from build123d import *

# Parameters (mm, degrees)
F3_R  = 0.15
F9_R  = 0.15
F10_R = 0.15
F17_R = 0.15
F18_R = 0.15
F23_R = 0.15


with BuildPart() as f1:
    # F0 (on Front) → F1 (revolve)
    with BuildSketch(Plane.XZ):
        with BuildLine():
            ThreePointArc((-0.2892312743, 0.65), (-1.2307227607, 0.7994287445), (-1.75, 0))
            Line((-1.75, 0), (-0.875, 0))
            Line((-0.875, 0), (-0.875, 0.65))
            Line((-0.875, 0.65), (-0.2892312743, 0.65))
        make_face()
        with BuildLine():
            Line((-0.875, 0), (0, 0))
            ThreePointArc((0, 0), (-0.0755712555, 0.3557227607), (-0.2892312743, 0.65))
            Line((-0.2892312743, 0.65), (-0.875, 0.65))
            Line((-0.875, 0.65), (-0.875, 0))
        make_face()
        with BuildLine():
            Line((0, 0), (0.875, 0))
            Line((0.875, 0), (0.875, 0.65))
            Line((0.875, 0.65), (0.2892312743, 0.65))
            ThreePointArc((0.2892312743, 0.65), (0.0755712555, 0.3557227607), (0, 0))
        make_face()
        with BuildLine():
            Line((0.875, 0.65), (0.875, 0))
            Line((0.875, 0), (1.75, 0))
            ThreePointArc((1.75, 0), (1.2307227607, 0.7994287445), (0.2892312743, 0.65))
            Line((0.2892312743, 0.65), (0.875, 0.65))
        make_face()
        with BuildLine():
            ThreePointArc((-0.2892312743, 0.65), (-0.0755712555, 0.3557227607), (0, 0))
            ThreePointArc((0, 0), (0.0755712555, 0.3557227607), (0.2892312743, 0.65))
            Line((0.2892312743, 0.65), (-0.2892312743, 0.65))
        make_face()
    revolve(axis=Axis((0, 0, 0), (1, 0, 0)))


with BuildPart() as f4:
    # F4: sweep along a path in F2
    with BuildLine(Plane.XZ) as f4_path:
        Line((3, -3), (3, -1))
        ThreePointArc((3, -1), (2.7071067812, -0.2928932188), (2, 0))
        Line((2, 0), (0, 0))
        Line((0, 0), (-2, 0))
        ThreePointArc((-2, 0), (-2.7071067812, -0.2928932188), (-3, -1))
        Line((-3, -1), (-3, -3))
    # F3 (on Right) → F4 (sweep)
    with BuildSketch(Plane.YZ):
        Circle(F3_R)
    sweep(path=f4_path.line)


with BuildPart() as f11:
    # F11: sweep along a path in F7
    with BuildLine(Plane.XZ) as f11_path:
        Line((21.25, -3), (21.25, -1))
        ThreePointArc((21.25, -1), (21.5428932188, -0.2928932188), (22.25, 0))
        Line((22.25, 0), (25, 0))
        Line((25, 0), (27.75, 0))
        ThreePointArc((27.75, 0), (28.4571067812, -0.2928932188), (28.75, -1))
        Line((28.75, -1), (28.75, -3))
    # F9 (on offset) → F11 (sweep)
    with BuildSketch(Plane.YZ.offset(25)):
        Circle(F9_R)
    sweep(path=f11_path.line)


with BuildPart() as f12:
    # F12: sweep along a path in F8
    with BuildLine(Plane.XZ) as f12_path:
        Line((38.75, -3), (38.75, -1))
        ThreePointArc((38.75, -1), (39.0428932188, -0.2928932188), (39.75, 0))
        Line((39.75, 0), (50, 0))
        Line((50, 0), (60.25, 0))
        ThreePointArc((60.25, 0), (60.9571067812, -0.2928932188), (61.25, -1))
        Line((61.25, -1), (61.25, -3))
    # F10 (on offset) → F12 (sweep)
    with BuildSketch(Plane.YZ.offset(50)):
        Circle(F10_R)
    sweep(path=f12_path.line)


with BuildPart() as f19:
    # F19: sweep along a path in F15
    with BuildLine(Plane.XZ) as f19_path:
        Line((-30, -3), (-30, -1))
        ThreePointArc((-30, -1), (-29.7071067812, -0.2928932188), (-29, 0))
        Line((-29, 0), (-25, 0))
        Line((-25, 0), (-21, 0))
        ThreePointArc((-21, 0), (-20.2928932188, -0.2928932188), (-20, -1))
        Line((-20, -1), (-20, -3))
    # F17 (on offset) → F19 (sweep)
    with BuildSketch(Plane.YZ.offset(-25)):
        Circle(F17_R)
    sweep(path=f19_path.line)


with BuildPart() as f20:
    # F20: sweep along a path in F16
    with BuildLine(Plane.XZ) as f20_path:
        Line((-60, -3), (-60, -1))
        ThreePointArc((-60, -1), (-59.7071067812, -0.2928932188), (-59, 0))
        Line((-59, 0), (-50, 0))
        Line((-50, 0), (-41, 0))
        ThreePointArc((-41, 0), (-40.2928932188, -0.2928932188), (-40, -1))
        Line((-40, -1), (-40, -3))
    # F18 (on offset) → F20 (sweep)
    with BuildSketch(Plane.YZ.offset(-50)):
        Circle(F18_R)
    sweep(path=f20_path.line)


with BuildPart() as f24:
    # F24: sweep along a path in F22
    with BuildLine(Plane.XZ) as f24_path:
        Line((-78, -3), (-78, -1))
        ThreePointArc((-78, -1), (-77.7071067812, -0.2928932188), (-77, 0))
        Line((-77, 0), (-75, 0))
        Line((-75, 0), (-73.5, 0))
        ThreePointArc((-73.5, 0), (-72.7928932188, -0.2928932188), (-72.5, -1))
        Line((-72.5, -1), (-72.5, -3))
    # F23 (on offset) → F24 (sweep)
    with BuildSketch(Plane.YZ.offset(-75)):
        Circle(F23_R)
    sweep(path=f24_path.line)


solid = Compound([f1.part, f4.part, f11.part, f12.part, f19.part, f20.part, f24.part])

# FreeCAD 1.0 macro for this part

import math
import FreeCAD as App
import Part
import Sketcher
Q = App.Units.Quantity

doc = App.newDocument("Part")
body = doc.addObject("PartDesign::Body", "Body")

sketch1 = body.newObject("Sketcher::SketchObject", "Sketch")
sketch1.AttachmentSupport = (doc.getObject("XZ_Plane"), [""])
sketch1.MapMode = "FlatFace"
sketch1.addGeometry([
    Part.ArcOfCircle(Part.Circle(App.Vector(-0.9, 0, 0), App.Vector(0, 0, 1), 0.9), math.radians(48), math.radians(180)),
    Part.LineSegment(App.Vector(-1.8, 0, 0), App.Vector(1.8, 0, 0)),
    Part.ArcOfCircle(Part.Circle(App.Vector(0.9, 0, 0), App.Vector(0, 0, 1), 0.9), math.radians(0), math.radians(132)),
    Part.LineSegment(App.Vector(0.3, 0.7, 0), App.Vector(-0.3, 0.7, 0)),
], False)
sketch1.addConstraint([
    Sketcher.Constraint("Coincident", 0, 2, 1, 1),
    Sketcher.Constraint("Coincident", 1, 2, 2, 1),
    Sketcher.Constraint("Coincident", 2, 2, 3, 1),
    Sketcher.Constraint("Coincident", 3, 2, 0, 1),
    Sketcher.Constraint("Horizontal", 1),
    Sketcher.Constraint("Horizontal", 3),
    Sketcher.Constraint("Equal", 0, 2),
    Sketcher.Constraint("Symmetric", 0, 3, 2, 3, -1, 1),
    Sketcher.Constraint("PointOnObject", 0, 3, -1),
    Sketcher.Constraint("PointOnObject", 0, 2, -1),
    Sketcher.Constraint("DistanceX", 1, 1, 1, 2, Q("3.5 mm")),
    Sketcher.Constraint("Radius", 0, Q("0.875 mm")),
    Sketcher.Constraint("DistanceY", -1, 1, 2, 2, Q("0.65 mm")),
])
revolution = body.newObject("PartDesign::Revolution", "Revolution")
revolution.Profile = sketch1
revolution.ReferenceAxis = (sketch1, ["H_Axis"])
revolution.Angle = 360
body2 = doc.addObject("PartDesign::Body", "Body001")

sketch2 = body2.newObject("Sketcher::SketchObject", "Sketch001")
sketch2.AttachmentSupport = (doc.getObject("YZ_Plane001"), [""])
sketch2.MapMode = "FlatFace"
sketch2.addGeometry(Part.Circle(App.Vector(0, 0, 0), App.Vector(0, 0, 1), 0.15), False)
sketch2.addConstraint([
    Sketcher.Constraint("Coincident", 0, 3, -1, 1),
    Sketcher.Constraint("Diameter", 0, Q("0.3 mm")),
])

sketch3 = body2.newObject("Sketcher::SketchObject", "Sketch002")
sketch3.AttachmentSupport = (doc.getObject("XZ_Plane001"), [""])
sketch3.MapMode = "FlatFace"
sketch3.addGeometry([
    Part.LineSegment(App.Vector(3, -3, 0), App.Vector(3, -1, 0)),
    Part.ArcOfCircle(Part.Circle(App.Vector(2, -1, 0), App.Vector(0, 0, 1), 1), math.radians(0), math.radians(90)),
    Part.LineSegment(App.Vector(2, 0, 0), App.Vector(-2, 0, 0)),
    Part.ArcOfCircle(Part.Circle(App.Vector(-2, -1, 0), App.Vector(0, 0, 1), 1), math.radians(90), math.radians(180)),
    Part.LineSegment(App.Vector(-3, -1, 0), App.Vector(-3, -3, 0)),
], False)
sketch3.addConstraint([
    Sketcher.Constraint("Tangent", 0, 2, 1, 1),
    Sketcher.Constraint("Tangent", 1, 2, 2, 1),
    Sketcher.Constraint("Tangent", 2, 2, 3, 1),
    Sketcher.Constraint("Tangent", 3, 2, 4, 1),
    Sketcher.Constraint("Vertical", 0),
    Sketcher.Constraint("Horizontal", 2),
    Sketcher.Constraint("Vertical", 4),
    Sketcher.Constraint("Equal", 1, 3),
    Sketcher.Constraint("Symmetric", 1, 2, 2, 2, -1, 1),
    Sketcher.Constraint("Horizontal", 0, 1, 4, 2),
    Sketcher.Constraint("Radius", 1, Q("1 mm")),
    Sketcher.Constraint("DistanceX", 2, 2, 2, 1, Q("4 mm")),
    Sketcher.Constraint("DistanceY", 0, 1, 0, 2, Q("2 mm")),
])
doc.recompute()

additivepipe = body2.newObject("PartDesign::AdditivePipe", "AdditivePipe")
additivepipe.Profile = sketch2
additivepipe.Spine = (sketch3, ["Edge1", "Edge2", "Edge3", "Edge4", "Edge5"])
body3 = doc.addObject("PartDesign::Body", "Body002")

sketch4 = body3.newObject("Sketcher::SketchObject", "Sketch003")
sketch4.AttachmentSupport = (doc.getObject("YZ_Plane002"), [""])
sketch4.MapMode = "FlatFace"
sketch4.AttachmentOffset = App.Placement(App.Vector(0, 0, 25), App.Rotation())
sketch4.addGeometry(Part.Circle(App.Vector(0, 0, 0), App.Vector(0, 0, 1), 0.15), False)
sketch4.addConstraint([
    Sketcher.Constraint("Coincident", 0, 3, -1, 1),
    Sketcher.Constraint("Diameter", 0, Q("0.3 mm")),
])

sketch5 = body3.newObject("Sketcher::SketchObject", "Sketch004")
sketch5.AttachmentSupport = (doc.getObject("XZ_Plane002"), [""])
sketch5.MapMode = "FlatFace"
sketch5.addGeometry([
    Part.LineSegment(App.Vector(21.2, -3, 0), App.Vector(21.2, -1, 0)),
    Part.ArcOfCircle(Part.Circle(App.Vector(22.2, -1, 0), App.Vector(0, 0, 1), 1), math.radians(90), math.radians(180)),
    Part.LineSegment(App.Vector(22.2, 0, 0), App.Vector(27.8, 0, 0)),
    Part.ArcOfCircle(Part.Circle(App.Vector(27.8, -1, 0), App.Vector(0, 0, 1), 1), math.radians(0), math.radians(90)),
    Part.LineSegment(App.Vector(28.8, -1, 0), App.Vector(28.8, -3, 0)),
], False)
sketch5.addConstraint([
    Sketcher.Constraint("Tangent", 0, 2, 1, 2),
    Sketcher.Constraint("Tangent", 1, 1, 2, 1),
    Sketcher.Constraint("Tangent", 2, 2, 3, 2),
    Sketcher.Constraint("Tangent", 3, 1, 4, 1),
    Sketcher.Constraint("Vertical", 0),
    Sketcher.Constraint("Horizontal", 2),
    Sketcher.Constraint("Vertical", 4),
    Sketcher.Constraint("Equal", 1, 3),
    Sketcher.Constraint("PointOnObject", 1, 1, -1),
    Sketcher.Constraint("Horizontal", 0, 1, 4, 2),
    Sketcher.Constraint("Radius", 1, Q("1 mm")),
    Sketcher.Constraint("DistanceY", 0, 1, 0, 2, Q("2 mm")),
    Sketcher.Constraint("DistanceX", 2, 1, 2, 2, Q("5.5 mm")),
    Sketcher.Constraint("DistanceX", -1, 1, 1, 3, Q("22.25 mm")),
])
doc.recompute()

additivepipe2 = body3.newObject("PartDesign::AdditivePipe", "AdditivePipe001")
additivepipe2.Profile = sketch4
additivepipe2.Spine = (sketch5, ["Edge1", "Edge2", "Edge3", "Edge4", "Edge5"])
body4 = doc.addObject("PartDesign::Body", "Body003")

sketch6 = body4.newObject("Sketcher::SketchObject", "Sketch005")
sketch6.AttachmentSupport = (doc.getObject("YZ_Plane003"), [""])
sketch6.MapMode = "FlatFace"
sketch6.AttachmentOffset = App.Placement(App.Vector(0, 0, 50), App.Rotation())
sketch6.addGeometry(Part.Circle(App.Vector(0, 0, 0), App.Vector(0, 0, 1), 0.15), False)
sketch6.addConstraint([
    Sketcher.Constraint("Coincident", 0, 3, -1, 1),
    Sketcher.Constraint("Diameter", 0, Q("0.3 mm")),
])

sketch7 = body4.newObject("Sketcher::SketchObject", "Sketch006")
sketch7.AttachmentSupport = (doc.getObject("XZ_Plane003"), [""])
sketch7.MapMode = "FlatFace"
sketch7.addGeometry([
    Part.LineSegment(App.Vector(38.8, -3, 0), App.Vector(38.8, -1, 0)),
    Part.ArcOfCircle(Part.Circle(App.Vector(39.8, -1, 0), App.Vector(0, 0, 1), 1), math.radians(90), math.radians(180)),
    Part.LineSegment(App.Vector(39.8, 0, 0), App.Vector(60.2, 0, 0)),
    Part.ArcOfCircle(Part.Circle(App.Vector(60.2, -1, 0), App.Vector(0, 0, 1), 1), math.radians(0), math.radians(90)),
    Part.LineSegment(App.Vector(61.2, -1, 0), App.Vector(61.2, -3, 0)),
], False)
sketch7.addConstraint([
    Sketcher.Constraint("Tangent", 0, 2, 1, 2),
    Sketcher.Constraint("Tangent", 1, 1, 2, 1),
    Sketcher.Constraint("Tangent", 2, 2, 3, 2),
    Sketcher.Constraint("Tangent", 3, 1, 4, 1),
    Sketcher.Constraint("Vertical", 0),
    Sketcher.Constraint("Horizontal", 2),
    Sketcher.Constraint("Vertical", 4),
    Sketcher.Constraint("Equal", 1, 3),
    Sketcher.Constraint("PointOnObject", 1, 1, -1),
    Sketcher.Constraint("Horizontal", 0, 1, 4, 2),
    Sketcher.Constraint("Radius", 1, Q("1 mm")),
    Sketcher.Constraint("DistanceY", 0, 1, 0, 2, Q("2 mm")),
    Sketcher.Constraint("DistanceX", 2, 1, 2, 2, Q("20.5 mm")),
    Sketcher.Constraint("DistanceX", -1, 1, 1, 3, Q("39.75 mm")),
])
doc.recompute()

additivepipe3 = body4.newObject("PartDesign::AdditivePipe", "AdditivePipe002")
additivepipe3.Profile = sketch6
additivepipe3.Spine = (sketch7, ["Edge1", "Edge2", "Edge3", "Edge4", "Edge5"])
body5 = doc.addObject("PartDesign::Body", "Body004")

sketch8 = body5.newObject("Sketcher::SketchObject", "Sketch007")
sketch8.AttachmentSupport = (doc.getObject("YZ_Plane004"), [""])
sketch8.MapMode = "FlatFace"
sketch8.AttachmentOffset = App.Placement(App.Vector(0, 0, -25), App.Rotation())
sketch8.addGeometry(Part.Circle(App.Vector(0, 0, 0), App.Vector(0, 0, 1), 0.15), False)
sketch8.addConstraint([
    Sketcher.Constraint("Coincident", 0, 3, -1, 1),
    Sketcher.Constraint("Diameter", 0, Q("0.3 mm")),
])

sketch9 = body5.newObject("Sketcher::SketchObject", "Sketch008")
sketch9.AttachmentSupport = (doc.getObject("XZ_Plane004"), [""])
sketch9.MapMode = "FlatFace"
sketch9.addGeometry([
    Part.LineSegment(App.Vector(-30, -3, 0), App.Vector(-30, -1, 0)),
    Part.ArcOfCircle(Part.Circle(App.Vector(-29, -1, 0), App.Vector(0, 0, 1), 1), math.radians(90), math.radians(180)),
    Part.LineSegment(App.Vector(-29, 0, 0), App.Vector(-21, 0, 0)),
    Part.ArcOfCircle(Part.Circle(App.Vector(-21, -1, 0), App.Vector(0, 0, 1), 1), math.radians(0), math.radians(90)),
    Part.LineSegment(App.Vector(-20, -1, 0), App.Vector(-20, -3, 0)),
], False)
sketch9.addConstraint([
    Sketcher.Constraint("Tangent", 0, 2, 1, 2),
    Sketcher.Constraint("Tangent", 1, 1, 2, 1),
    Sketcher.Constraint("Tangent", 2, 2, 3, 2),
    Sketcher.Constraint("Tangent", 3, 1, 4, 1),
    Sketcher.Constraint("Vertical", 0),
    Sketcher.Constraint("Horizontal", 2),
    Sketcher.Constraint("Vertical", 4),
    Sketcher.Constraint("Equal", 1, 3),
    Sketcher.Constraint("PointOnObject", 1, 1, -1),
    Sketcher.Constraint("Horizontal", 0, 1, 4, 2),
    Sketcher.Constraint("Radius", 1, Q("1 mm")),
    Sketcher.Constraint("DistanceX", 2, 1, 2, 2, Q("8 mm")),
    Sketcher.Constraint("DistanceY", 0, 1, 0, 2, Q("2 mm")),
    Sketcher.Constraint("DistanceX", 1, 3, -1, 1, Q("29 mm")),
])
doc.recompute()

additivepipe4 = body5.newObject("PartDesign::AdditivePipe", "AdditivePipe003")
additivepipe4.Profile = sketch8
additivepipe4.Spine = (sketch9, ["Edge1", "Edge2", "Edge3", "Edge4", "Edge5"])
body6 = doc.addObject("PartDesign::Body", "Body005")

sketch10 = body6.newObject("Sketcher::SketchObject", "Sketch009")
sketch10.AttachmentSupport = (doc.getObject("YZ_Plane005"), [""])
sketch10.MapMode = "FlatFace"
sketch10.AttachmentOffset = App.Placement(App.Vector(0, 0, -50), App.Rotation())
sketch10.addGeometry(Part.Circle(App.Vector(0, 0, 0), App.Vector(0, 0, 1), 0.15), False)
sketch10.addConstraint([
    Sketcher.Constraint("Coincident", 0, 3, -1, 1),
    Sketcher.Constraint("Diameter", 0, Q("0.3 mm")),
])

sketch11 = body6.newObject("Sketcher::SketchObject", "Sketch010")
sketch11.AttachmentSupport = (doc.getObject("XZ_Plane005"), [""])
sketch11.MapMode = "FlatFace"
sketch11.addGeometry([
    Part.LineSegment(App.Vector(-60, -3, 0), App.Vector(-60, -1, 0)),
    Part.ArcOfCircle(Part.Circle(App.Vector(-59, -1, 0), App.Vector(0, 0, 1), 1), math.radians(90), math.radians(180)),
    Part.LineSegment(App.Vector(-59, 0, 0), App.Vector(-41, 0, 0)),
    Part.ArcOfCircle(Part.Circle(App.Vector(-41, -1, 0), App.Vector(0, 0, 1), 1), math.radians(0), math.radians(90)),
    Part.LineSegment(App.Vector(-40, -1, 0), App.Vector(-40, -3, 0)),
], False)
sketch11.addConstraint([
    Sketcher.Constraint("Tangent", 0, 2, 1, 2),
    Sketcher.Constraint("Tangent", 1, 1, 2, 1),
    Sketcher.Constraint("Tangent", 2, 2, 3, 2),
    Sketcher.Constraint("Tangent", 3, 1, 4, 1),
    Sketcher.Constraint("Vertical", 0),
    Sketcher.Constraint("Horizontal", 2),
    Sketcher.Constraint("Vertical", 4),
    Sketcher.Constraint("Equal", 1, 3),
    Sketcher.Constraint("PointOnObject", 1, 1, -1),
    Sketcher.Constraint("Horizontal", 0, 1, 4, 2),
    Sketcher.Constraint("Radius", 1, Q("1 mm")),
    Sketcher.Constraint("DistanceX", 2, 1, 2, 2, Q("18 mm")),
    Sketcher.Constraint("DistanceY", 0, 1, 0, 2, Q("2 mm")),
    Sketcher.Constraint("DistanceX", 1, 3, -1, 1, Q("59 mm")),
])
doc.recompute()

additivepipe5 = body6.newObject("PartDesign::AdditivePipe", "AdditivePipe004")
additivepipe5.Profile = sketch10
additivepipe5.Spine = (sketch11, ["Edge1", "Edge2", "Edge3", "Edge4", "Edge5"])
body7 = doc.addObject("PartDesign::Body", "Body006")

sketch12 = body7.newObject("Sketcher::SketchObject", "Sketch011")
sketch12.AttachmentSupport = (doc.getObject("YZ_Plane006"), [""])
sketch12.MapMode = "FlatFace"
sketch12.AttachmentOffset = App.Placement(App.Vector(0, 0, -75), App.Rotation())
sketch12.addGeometry(Part.Circle(App.Vector(0, 0, 0), App.Vector(0, 0, 1), 0.15), False)
sketch12.addConstraint([
    Sketcher.Constraint("Coincident", 0, 3, -1, 1),
    Sketcher.Constraint("Diameter", 0, Q("0.3 mm")),
])

sketch13 = body7.newObject("Sketcher::SketchObject", "Sketch012")
sketch13.AttachmentSupport = (doc.getObject("XZ_Plane006"), [""])
sketch13.MapMode = "FlatFace"
sketch13.addGeometry([
    Part.LineSegment(App.Vector(-78, -3, 0), App.Vector(-78, -1, 0)),
    Part.ArcOfCircle(Part.Circle(App.Vector(-77, -1, 0), App.Vector(0, 0, 1), 1), math.radians(90), math.radians(180)),
    Part.LineSegment(App.Vector(-77, 0, 0), App.Vector(-73.5, 0, 0)),
    Part.ArcOfCircle(Part.Circle(App.Vector(-73.5, -1, 0), App.Vector(0, 0, 1), 1), math.radians(0), math.radians(90)),
    Part.LineSegment(App.Vector(-72.5, -1, 0), App.Vector(-72.5, -3, 0)),
], False)
sketch13.addConstraint([
    Sketcher.Constraint("Tangent", 0, 2, 1, 2),
    Sketcher.Constraint("Tangent", 1, 1, 2, 1),
    Sketcher.Constraint("Tangent", 2, 2, 3, 2),
    Sketcher.Constraint("Tangent", 3, 1, 4, 1),
    Sketcher.Constraint("Vertical", 0),
    Sketcher.Constraint("Horizontal", 2),
    Sketcher.Constraint("Vertical", 4),
    Sketcher.Constraint("Equal", 1, 3),
    Sketcher.Constraint("PointOnObject", 1, 1, -1),
    Sketcher.Constraint("Horizontal", 0, 1, 4, 2),
    Sketcher.Constraint("Radius", 1, Q("1 mm")),
    Sketcher.Constraint("DistanceY", 0, 1, 0, 2, Q("2 mm")),
    Sketcher.Constraint("DistanceX", 2, 1, 2, 2, Q("3.5 mm")),
    Sketcher.Constraint("DistanceX", 1, 3, -1, 1, Q("77 mm")),
])
doc.recompute()

additivepipe6 = body7.newObject("PartDesign::AdditivePipe", "AdditivePipe005")
additivepipe6.Profile = sketch12
additivepipe6.Spine = (sketch13, ["Edge1", "Edge2", "Edge3", "Edge4", "Edge5"])

doc.recompute()
